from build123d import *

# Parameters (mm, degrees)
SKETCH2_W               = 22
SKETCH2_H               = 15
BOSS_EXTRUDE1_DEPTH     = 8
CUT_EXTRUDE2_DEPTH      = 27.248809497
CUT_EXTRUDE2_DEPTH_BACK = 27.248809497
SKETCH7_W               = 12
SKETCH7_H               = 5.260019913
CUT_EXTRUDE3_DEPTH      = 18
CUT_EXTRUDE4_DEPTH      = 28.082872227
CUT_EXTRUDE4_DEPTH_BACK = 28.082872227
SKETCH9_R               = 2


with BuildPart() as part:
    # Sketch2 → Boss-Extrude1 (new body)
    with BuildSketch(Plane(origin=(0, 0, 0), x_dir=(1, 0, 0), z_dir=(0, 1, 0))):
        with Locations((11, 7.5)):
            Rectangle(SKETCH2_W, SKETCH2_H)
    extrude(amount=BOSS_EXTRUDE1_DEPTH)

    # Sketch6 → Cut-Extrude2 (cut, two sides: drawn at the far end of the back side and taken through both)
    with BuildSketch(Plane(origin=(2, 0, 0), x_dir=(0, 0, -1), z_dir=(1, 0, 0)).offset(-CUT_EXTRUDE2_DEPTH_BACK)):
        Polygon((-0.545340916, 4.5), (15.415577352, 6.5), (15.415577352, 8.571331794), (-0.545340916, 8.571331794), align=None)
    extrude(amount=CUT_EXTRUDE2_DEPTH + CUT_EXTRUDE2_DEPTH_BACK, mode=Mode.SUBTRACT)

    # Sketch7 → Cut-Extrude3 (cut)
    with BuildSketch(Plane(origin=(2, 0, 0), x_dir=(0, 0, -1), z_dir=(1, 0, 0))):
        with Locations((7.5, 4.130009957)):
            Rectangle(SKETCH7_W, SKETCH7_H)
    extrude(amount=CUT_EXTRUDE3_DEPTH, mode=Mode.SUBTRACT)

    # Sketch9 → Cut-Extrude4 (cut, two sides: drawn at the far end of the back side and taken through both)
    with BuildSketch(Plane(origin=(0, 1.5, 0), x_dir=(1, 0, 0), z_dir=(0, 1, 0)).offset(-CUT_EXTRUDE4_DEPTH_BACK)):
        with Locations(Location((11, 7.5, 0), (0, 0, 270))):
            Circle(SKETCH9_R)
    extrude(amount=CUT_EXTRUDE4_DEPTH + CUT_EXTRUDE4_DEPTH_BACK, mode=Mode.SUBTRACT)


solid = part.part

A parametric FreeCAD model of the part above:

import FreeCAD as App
import Part
import Sketcher
Q = App.Units.Quantity


def add_polygon(sketch, points):
    """Adds a closed chain of lines whose ends are joined by coincident constraints."""
    first, n = sketch.GeometryCount, len(points)
    for a, b in zip(points, points[1:] + points[:1]):
        sketch.addGeometry(Part.LineSegment(App.Vector(*a, 0), App.Vector(*b, 0)), False)
    for i in range(n):
        sketch.addConstraint(Sketcher.Constraint("Coincident", first + i, 2, first + (i + 1) % n, 1))

doc = App.newDocument("Part")
params = doc.addObject("Spreadsheet::Sheet", "Params")
for row, (alias, value) in enumerate([
    ("sketch1_width", "22 mm"),
    ("sketch1_height", "15 mm"),
    ("pad1_length", "8 mm"),
    ("sketch3_height", "12 mm"),
    ("pocket2_length", "18 mm"),
    ("sketch4_diameter", "4 mm"),
], start=1):
    params.set(f"A{row}", alias)
    params.set(f"B{row}", "=" + value)
    params.setAlias(f"B{row}", alias)

body = doc.addObject("PartDesign::Body", "Body")

sketch1 = body.newObject("Sketcher::SketchObject", "Sketch")
sketch1.AttachmentSupport = (doc.getObject("XZ_Plane"), [""])
sketch1.MapMode = "FlatFace"
add_polygon(sketch1, [(0, -15), (0, 0), (22, 0), (22, -15)])
sketch1.addConstraint([
    Sketcher.Constraint("Vertical", 0),
    Sketcher.Constraint("Horizontal", 1),
    Sketcher.Constraint("Vertical", 2),
    Sketcher.Constraint("Horizontal", 3),
    Sketcher.Constraint("Coincident", 0, 2, -1, 1),
    Sketcher.Constraint("DistanceX", 1, 1, 1, 2, Q("22 mm")),
    Sketcher.Constraint("DistanceY", 0, 1, 0, 2, Q("15 mm")),
])
sketch1.setExpression("Constraints[9]", "Params.sketch1_width")
sketch1.setExpression("Constraints[10]", "Params.sketch1_height")
pad1 = body.newObject("PartDesign::Pad", "Pad")
pad1.Profile = sketch1
pad1.setExpression("Length", "Params.pad1_length")
pad1.Reversed = True

sketch2 = body.newObject("Sketcher::SketchObject", "Sketch001")
sketch2.AttachmentSupport = (doc.getObject("YZ_Plane"), [""])
sketch2.MapMode = "FlatFace"
sketch2.AttachmentOffset = App.Placement(App.Vector(0, 0, 2), App.Rotation())
add_polygon(sketch2, [(4.5, 0.5), (6.5, -15.4), (8.6, -15.4), (8.6, 0.5)])
sketch2.addConstraint([
    Sketcher.Constraint("Horizontal", 1),
    Sketcher.Constraint("Vertical", 2),
    Sketcher.Constraint("Horizontal", 3),
    Sketcher.Constraint("DistanceX", 3, 2, 0, 2, Q("2 mm")),
    Sketcher.Constraint("DistanceX", -1, 1, 0, 2, Q("6.5 mm")),
    Sketcher.Constraint("DistanceX", 1, 1, 1, 2, Q("2.071332 mm")),
    Sketcher.Constraint("DistanceY", 2, 1, 2, 2, Q("15.960918 mm")),
    Sketcher.Constraint("DistanceY", -1, 1, 2, 2, Q("0.545341 mm")),
])
pocket1 = body.newObject("PartDesign::Pocket", "Pocket")
pocket1.Profile = sketch2
pocket1.Type = "ThroughAll"
pocket1.Midplane = True

sketch3 = body.newObject("Sketcher::SketchObject", "Sketch002")
sketch3.AttachmentSupport = (doc.getObject("YZ_Plane"), [""])
sketch3.MapMode = "FlatFace"
sketch3.AttachmentOffset = App.Placement(App.Vector(0, 0, 2), App.Rotation())
add_polygon(sketch3, [(7, -2), (2, -2), (2, -14), (7, -14)])
sketch3.addConstraint([
    Sketcher.Constraint("Horizontal", 0),
    Sketcher.Constraint("Vertical", 1),
    Sketcher.Constraint("Horizontal", 2),
    Sketcher.Constraint("Vertical", 3),
    Sketcher.Constraint("DistanceY", 1, 2, 1, 1, Q("12 mm")),
    Sketcher.Constraint("DistanceX", -1, 1, 0, 2, Q("1.5 mm")),
    Sketcher.Constraint("DistanceY", 0, 2, -1, 1, Q("1.5 mm")),
    Sketcher.Constraint("DistanceX", 0, 2, 0, 1, Q("5.26002 mm")),
])
sketch3.setExpression("Constraints[8]", "Params.sketch3_height")
pocket2 = body.newObject("PartDesign::Pocket", "Pocket001")
pocket2.Profile = sketch3
pocket2.setExpression("Length", "Params.pocket2_length")
pocket2.Reversed = True

sketch4 = body.newObject("Sketcher::SketchObject", "Sketch003")
sketch4.AttachmentSupport = (doc.getObject("XZ_Plane"), [""])
sketch4.MapMode = "FlatFace"
sketch4.AttachmentOffset = App.Placement(App.Vector(0, 0, -1.5), App.Rotation())
sketch4.addGeometry(Part.Circle(App.Vector(11, -7.5, 0), App.Vector(0, 0, 1), 2), False)
sketch4.addConstraint([
    Sketcher.Constraint("Diameter", 0, Q("4 mm")),
    Sketcher.Constraint("DistanceX", -1, 1, 0, 3, Q("11 mm")),
    Sketcher.Constraint("DistanceY", 0, 3, -1, 1, Q("7.5 mm")),
])
sketch4.setExpression("Constraints[0]", "Params.sketch4_diameter")
pocket3 = body.newObject("PartDesign::Pocket", "Pocket002")
pocket3.Profile = sketch4
pocket3.Type = "ThroughAll"
pocket3.Midplane = True

doc.recompute()
